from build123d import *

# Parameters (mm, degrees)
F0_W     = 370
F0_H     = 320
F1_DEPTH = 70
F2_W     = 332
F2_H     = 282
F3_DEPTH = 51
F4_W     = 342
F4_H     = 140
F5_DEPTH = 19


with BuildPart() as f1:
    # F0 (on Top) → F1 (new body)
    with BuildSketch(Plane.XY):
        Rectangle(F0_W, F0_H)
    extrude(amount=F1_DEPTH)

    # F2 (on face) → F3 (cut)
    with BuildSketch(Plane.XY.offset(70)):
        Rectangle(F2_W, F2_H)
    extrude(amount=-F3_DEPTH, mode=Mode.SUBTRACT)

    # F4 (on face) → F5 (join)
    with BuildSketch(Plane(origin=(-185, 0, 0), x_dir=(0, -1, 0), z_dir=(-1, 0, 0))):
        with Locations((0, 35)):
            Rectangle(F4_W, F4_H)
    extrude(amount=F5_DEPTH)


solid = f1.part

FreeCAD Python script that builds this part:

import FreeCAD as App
import Part
import Sketcher
Q = App.Units.Quantity


def add_polygon(sketch, points):
    """Adds a closed chain of lines whose ends are joined by coincident constraints."""
    first, n = sketch.GeometryCount, len(points)
    for a, b in zip(points, points[1:] + points[:1]):
        sketch.addGeometry(Part.LineSegment(App.Vector(*a, 0), App.Vector(*b, 0)), False)
    for i in range(n):
        sketch.addConstraint(Sketcher.Constraint("Coincident", first + i, 2, first + (i + 1) % n, 1))

doc = App.newDocument("Part")
body = doc.addObject("PartDesign::Body", "Body")

sketch1 = body.newObject("Sketcher::SketchObject", "Sketch")
sketch1.AttachmentSupport = (doc.getObject("XY_Plane"), [""])
sketch1.MapMode = "FlatFace"
add_polygon(sketch1, [(-185, 160), (-185, -160), (185, -160), (185, 160)])
sketch1.addConstraint(Sketcher.Constraint("Vertical", 0))
sketch1.addConstraint(Sketcher.Constraint("Horizontal", 1))
sketch1.addConstraint(Sketcher.Constraint("Vertical", 2))
sketch1.addConstraint(Sketcher.Constraint("Horizontal", 3))
sketch1.addConstraint(Sketcher.Constraint("Symmetric", 0, 2, 2, 2, -1, 1))
sketch1.addConstraint(Sketcher.Constraint("DistanceX", 1, 1, 1, 2, Q("370 mm")))
sketch1.addConstraint(Sketcher.Constraint("DistanceY", 0, 2, 0, 1, Q("320 mm")))
pad1 = body.newObject("PartDesign::Pad", "Pad")
pad1.Profile = sketch1
pad1.Length = 70

sketch2 = body.newObject("Sketcher::SketchObject", "Sketch001")
sketch2.AttachmentSupport = (doc.getObject("XY_Plane"), [""])
sketch2.MapMode = "FlatFace"
sketch2.AttachmentOffset = App.Placement(App.Vector(0, 0, 70), App.Rotation())
add_polygon(sketch2, [(-166, 141), (-166, -141), (166, -141), (166, 141)])
sketch2.addConstraint(Sketcher.Constraint("Vertical", 0))
sketch2.addConstraint(Sketcher.Constraint("Horizontal", 1))
sketch2.addConstraint(Sketcher.Constraint("Vertical", 2))
sketch2.addConstraint(Sketcher.Constraint("Horizontal", 3))
sketch2.addConstraint(Sketcher.Constraint("Symmetric", 0, 2, 2, 2, -1, 1))
sketch2.addConstraint(Sketcher.Constraint("DistanceX", 1, 1, 1, 2, Q("332 mm")))
sketch2.addConstraint(Sketcher.Constraint("DistanceY", 0, 2, 0, 1, Q("282 mm")))
pocket1 = body.newObject("PartDesign::Pocket", "Pocket")
pocket1.Profile = sketch2
pocket1.Length = 51

sketch3 = body.newObject("Sketcher::SketchObject", "Sketch002")
sketch3.AttachmentSupport = (doc.getObject("YZ_Plane"), [""])
sketch3.MapMode = "FlatFace"
sketch3.AttachmentOffset = App.Placement(App.Vector(0, 0, -185), App.Rotation())
add_polygon(sketch3, [(171, 105), (171, -35), (-171, -35), (-171, 105)])
sketch3.addConstraint(Sketcher.Constraint("Vertical", 0))
sketch3.addConstraint(Sketcher.Constraint("Horizontal", 1))
sketch3.addConstraint(Sketcher.Constraint("Vertical", 2))
sketch3.addConstraint(Sketcher.Constraint("Horizontal", 3))
sketch3.addConstraint(Sketcher.Constraint("DistanceX", 1, 2, 1, 1, Q("342 mm")))
sketch3.addConstraint(Sketcher.Constraint("DistanceY", 0, 2, 0, 1, Q("140 mm")))
sketch3.addConstraint(Sketcher.Constraint("DistanceX", -1, 1, 0, 2, Q("171 mm")))
sketch3.addConstraint(Sketcher.Constraint("DistanceY", 0, 2, -1, 1, Q("35 mm")))
pad2 = body.newObject("PartDesign::Pad", "Pad001")
pad2.Profile = sketch3
pad2.Length = 19
pad2.Reversed = True

doc.recompute()
